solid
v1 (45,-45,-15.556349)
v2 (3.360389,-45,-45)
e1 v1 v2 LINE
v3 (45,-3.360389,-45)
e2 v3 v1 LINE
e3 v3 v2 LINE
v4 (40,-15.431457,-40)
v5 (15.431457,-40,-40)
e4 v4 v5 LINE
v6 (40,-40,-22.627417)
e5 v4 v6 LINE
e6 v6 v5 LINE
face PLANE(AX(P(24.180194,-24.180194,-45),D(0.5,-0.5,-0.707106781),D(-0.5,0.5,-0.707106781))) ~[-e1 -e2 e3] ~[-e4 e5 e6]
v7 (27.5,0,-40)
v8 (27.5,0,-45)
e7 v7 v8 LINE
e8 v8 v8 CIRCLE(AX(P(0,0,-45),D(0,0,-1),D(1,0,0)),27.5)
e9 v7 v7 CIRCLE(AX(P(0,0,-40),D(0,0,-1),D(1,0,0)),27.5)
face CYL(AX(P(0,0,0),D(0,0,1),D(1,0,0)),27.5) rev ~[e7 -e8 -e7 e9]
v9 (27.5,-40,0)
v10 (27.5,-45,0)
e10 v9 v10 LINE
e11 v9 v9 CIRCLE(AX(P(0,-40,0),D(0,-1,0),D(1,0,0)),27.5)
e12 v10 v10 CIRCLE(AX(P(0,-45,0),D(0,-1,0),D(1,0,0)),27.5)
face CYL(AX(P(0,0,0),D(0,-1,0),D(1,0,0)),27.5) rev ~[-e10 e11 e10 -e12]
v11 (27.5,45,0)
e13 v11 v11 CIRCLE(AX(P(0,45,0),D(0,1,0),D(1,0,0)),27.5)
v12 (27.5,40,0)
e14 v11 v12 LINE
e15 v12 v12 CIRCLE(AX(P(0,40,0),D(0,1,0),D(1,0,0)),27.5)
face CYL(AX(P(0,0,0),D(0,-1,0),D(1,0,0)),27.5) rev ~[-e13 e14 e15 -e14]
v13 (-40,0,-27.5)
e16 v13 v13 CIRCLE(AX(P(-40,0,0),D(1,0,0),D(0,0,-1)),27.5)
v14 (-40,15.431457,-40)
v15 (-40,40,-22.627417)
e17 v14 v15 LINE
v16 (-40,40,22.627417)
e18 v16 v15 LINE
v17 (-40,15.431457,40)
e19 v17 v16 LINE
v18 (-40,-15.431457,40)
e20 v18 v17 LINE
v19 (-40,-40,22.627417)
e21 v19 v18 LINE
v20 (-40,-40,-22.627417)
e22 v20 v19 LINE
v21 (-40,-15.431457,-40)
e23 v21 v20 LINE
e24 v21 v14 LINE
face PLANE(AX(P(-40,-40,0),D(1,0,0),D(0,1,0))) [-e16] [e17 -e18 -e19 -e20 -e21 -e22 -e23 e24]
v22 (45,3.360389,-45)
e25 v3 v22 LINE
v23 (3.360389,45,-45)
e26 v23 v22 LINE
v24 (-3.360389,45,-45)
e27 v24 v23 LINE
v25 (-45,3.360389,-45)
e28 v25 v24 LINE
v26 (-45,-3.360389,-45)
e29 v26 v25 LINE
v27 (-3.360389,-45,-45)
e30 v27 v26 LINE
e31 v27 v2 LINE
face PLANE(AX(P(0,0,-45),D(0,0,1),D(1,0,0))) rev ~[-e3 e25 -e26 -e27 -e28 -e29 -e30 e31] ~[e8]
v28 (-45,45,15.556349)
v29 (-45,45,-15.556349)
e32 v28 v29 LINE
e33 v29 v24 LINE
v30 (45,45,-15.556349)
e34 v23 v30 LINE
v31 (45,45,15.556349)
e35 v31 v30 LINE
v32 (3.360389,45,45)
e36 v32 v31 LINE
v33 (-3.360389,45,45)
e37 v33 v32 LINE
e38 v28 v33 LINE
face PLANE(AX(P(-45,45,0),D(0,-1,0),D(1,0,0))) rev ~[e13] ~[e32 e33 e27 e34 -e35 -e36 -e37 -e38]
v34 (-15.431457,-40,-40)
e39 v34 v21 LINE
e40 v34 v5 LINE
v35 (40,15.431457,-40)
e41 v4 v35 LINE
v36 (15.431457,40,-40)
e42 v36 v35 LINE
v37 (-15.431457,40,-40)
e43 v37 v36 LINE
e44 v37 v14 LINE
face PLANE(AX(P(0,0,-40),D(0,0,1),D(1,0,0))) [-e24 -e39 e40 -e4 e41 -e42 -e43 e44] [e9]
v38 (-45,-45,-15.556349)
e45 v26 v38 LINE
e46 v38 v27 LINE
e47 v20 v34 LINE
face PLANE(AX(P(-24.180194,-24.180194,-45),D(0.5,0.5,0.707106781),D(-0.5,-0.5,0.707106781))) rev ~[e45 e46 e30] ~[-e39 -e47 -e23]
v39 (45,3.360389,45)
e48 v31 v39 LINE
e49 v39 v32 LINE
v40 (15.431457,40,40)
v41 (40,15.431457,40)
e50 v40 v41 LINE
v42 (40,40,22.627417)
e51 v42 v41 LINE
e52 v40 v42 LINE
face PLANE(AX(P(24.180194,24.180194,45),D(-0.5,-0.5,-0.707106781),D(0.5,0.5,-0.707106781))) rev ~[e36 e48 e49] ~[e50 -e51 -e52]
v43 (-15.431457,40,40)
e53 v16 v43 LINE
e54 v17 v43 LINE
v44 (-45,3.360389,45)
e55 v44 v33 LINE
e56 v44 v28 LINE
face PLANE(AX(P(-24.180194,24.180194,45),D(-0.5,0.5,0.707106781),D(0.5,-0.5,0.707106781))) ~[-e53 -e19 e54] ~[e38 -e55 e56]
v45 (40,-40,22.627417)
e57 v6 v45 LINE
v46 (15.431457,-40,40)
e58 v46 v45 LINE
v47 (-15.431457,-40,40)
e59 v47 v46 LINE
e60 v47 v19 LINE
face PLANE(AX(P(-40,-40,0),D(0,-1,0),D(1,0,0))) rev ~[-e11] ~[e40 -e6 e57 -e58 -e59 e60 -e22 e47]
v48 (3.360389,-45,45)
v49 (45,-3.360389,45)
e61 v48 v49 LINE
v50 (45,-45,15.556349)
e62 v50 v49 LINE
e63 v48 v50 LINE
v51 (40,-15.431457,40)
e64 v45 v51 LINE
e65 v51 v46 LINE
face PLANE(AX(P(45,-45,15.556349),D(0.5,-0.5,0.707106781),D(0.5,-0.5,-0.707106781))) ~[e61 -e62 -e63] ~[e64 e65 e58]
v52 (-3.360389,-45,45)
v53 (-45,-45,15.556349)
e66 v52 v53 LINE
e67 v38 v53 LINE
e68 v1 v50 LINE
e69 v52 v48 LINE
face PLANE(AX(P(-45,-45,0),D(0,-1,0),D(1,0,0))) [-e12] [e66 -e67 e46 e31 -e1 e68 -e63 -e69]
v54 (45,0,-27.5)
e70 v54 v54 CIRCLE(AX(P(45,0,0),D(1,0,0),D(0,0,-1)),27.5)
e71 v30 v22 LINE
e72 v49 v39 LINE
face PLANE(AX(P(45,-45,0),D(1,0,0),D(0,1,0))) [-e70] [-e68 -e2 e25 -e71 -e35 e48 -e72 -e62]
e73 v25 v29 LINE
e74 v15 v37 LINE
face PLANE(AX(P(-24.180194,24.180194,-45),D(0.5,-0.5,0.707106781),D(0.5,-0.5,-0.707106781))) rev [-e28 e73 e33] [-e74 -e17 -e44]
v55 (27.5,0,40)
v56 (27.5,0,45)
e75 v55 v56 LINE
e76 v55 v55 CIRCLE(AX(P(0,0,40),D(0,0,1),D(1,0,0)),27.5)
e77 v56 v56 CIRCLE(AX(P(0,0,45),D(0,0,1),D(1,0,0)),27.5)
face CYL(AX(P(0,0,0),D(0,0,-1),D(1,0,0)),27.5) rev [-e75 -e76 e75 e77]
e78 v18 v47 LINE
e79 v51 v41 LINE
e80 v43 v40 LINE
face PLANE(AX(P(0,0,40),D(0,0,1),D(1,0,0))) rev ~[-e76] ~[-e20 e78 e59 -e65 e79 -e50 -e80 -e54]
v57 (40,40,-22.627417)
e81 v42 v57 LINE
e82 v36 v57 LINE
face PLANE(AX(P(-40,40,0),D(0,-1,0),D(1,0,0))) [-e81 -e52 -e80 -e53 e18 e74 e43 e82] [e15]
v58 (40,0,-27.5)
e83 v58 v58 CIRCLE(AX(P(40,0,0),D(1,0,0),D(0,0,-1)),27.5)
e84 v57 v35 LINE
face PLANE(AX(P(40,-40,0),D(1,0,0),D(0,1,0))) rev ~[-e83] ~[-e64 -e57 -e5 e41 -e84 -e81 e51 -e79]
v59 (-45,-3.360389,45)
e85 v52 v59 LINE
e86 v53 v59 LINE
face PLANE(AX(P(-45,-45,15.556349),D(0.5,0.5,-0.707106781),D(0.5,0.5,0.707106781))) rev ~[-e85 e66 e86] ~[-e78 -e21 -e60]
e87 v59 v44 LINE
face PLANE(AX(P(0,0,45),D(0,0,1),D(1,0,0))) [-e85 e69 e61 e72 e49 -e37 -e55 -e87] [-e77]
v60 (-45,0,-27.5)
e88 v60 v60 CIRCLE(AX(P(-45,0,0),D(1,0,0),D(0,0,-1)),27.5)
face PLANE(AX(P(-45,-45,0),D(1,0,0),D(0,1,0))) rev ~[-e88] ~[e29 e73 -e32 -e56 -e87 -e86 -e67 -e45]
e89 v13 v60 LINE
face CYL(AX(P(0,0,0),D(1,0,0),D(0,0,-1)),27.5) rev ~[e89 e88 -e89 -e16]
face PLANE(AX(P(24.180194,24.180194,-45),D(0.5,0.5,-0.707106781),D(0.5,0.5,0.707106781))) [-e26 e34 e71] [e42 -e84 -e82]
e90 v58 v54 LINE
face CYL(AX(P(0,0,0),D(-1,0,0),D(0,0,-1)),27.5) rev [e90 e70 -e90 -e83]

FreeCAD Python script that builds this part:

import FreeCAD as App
import Part
import Sketcher


def add_polygon(sketch, points):
    """Adds a closed chain of lines whose ends are joined by coincident constraints."""
    first, n = sketch.GeometryCount, len(points)
    for a, b in zip(points, points[1:] + points[:1]):
        sketch.addGeometry(Part.LineSegment(App.Vector(*a, 0), App.Vector(*b, 0)), False)
    for i in range(n):
        sketch.addConstraint(Sketcher.Constraint("Coincident", first + i, 2, first + (i + 1) % n, 1))

doc = App.newDocument("Part")
body = doc.addObject("PartDesign::Body", "Body")

# Sketch on XY plane
sketch1 = body.newObject("Sketcher::SketchObject", "Sketch")
sketch1.AttachmentSupport = (doc.getObject("XY_Plane"), [""])
sketch1.MapMode = "FlatFace"
add_polygon(sketch1, [(-45, 45), (-45, -45), (45, -45), (45, 45)])  # lines 0-3
sketch1.addConstraint([
    Sketcher.Constraint("Vertical", 0),
    Sketcher.Constraint("Horizontal", 1),
    Sketcher.Constraint("Vertical", 2),
    Sketcher.Constraint("Horizontal", 3),
    Sketcher.Constraint("Symmetric", 0, 2, 2, 2, -1, 1),
    Sketcher.Constraint("Equal", 3, 0),
    Sketcher.Constraint("DistanceX", 1, 1, 1, 2, 90.0),
])
pad1 = body.newObject("PartDesign::Pad", "Pad")
pad1.Profile = sketch1
pad1.Length = 90
pad1.Midplane = True

# Sketch on XY plane
sketch2 = body.newObject("Sketcher::SketchObject", "Sketch001")
sketch2.AttachmentSupport = (doc.getObject("XY_Plane"), [""])
sketch2.MapMode = "FlatFace"
add_polygon(sketch2, [(-40, 40), (-40, -40), (40, -40), (40, 40)])  # lines 0-3
sketch2.addConstraint([
    Sketcher.Constraint("Vertical", 0),
    Sketcher.Constraint("Horizontal", 1),
    Sketcher.Constraint("Vertical", 2),
    Sketcher.Constraint("Horizontal", 3),
    Sketcher.Constraint("Symmetric", 0, 2, 2, 2, -1, 1),
    Sketcher.Constraint("Equal", 3, 0),
    Sketcher.Constraint("DistanceX", 1, 1, 1, 2, 80.0),
])
pocket1 = body.newObject("PartDesign::Pocket", "Pocket")
pocket1.Profile = sketch2
pocket1.Length = 80
pocket1.Midplane = True

# Sketch on XY plane
sketch3 = body.newObject("Sketcher::SketchObject", "Sketch002")
sketch3.AttachmentSupport = (doc.getObject("XY_Plane"), [""])
sketch3.MapMode = "FlatFace"
sketch3.addGeometry(Part.Circle(App.Vector(0, 0, 0), App.Vector(0, 0, 1), 28), False)
sketch3.addConstraint([
    Sketcher.Constraint("Coincident", 0, 3, -1, 1),
    Sketcher.Constraint("Diameter", 0, 55.0),
])
pocket2 = body.newObject("PartDesign::Pocket", "Pocket001")
pocket2.Profile = sketch3
pocket2.Type = "ThroughAll"
pocket2.Midplane = True

# Sketch on YZ plane
sketch4 = body.newObject("Sketcher::SketchObject", "Sketch003")
sketch4.AttachmentSupport = (doc.getObject("YZ_Plane"), [""])
sketch4.MapMode = "FlatFace"
sketch4.addGeometry(Part.Circle(App.Vector(0, 0, 0), App.Vector(0, 0, 1), 28), False)
sketch4.addConstraint([
    Sketcher.Constraint("Coincident", 0, 3, -1, 1),
    Sketcher.Constraint("Diameter", 0, 55.0),
])
pocket3 = body.newObject("PartDesign::Pocket", "Pocket002")
pocket3.Profile = sketch4
pocket3.Type = "ThroughAll"
pocket3.Midplane = True

# Sketch on XY plane
sketch5 = body.newObject("Sketcher::SketchObject", "Sketch004")
sketch5.AttachmentSupport = (doc.getObject("XY_Plane"), [""])
sketch5.MapMode = "FlatFace"
sketch5.addGeometry(Part.Circle(App.Vector(0, 0, 0), App.Vector(0, 0, 1), 28), False)
sketch5.addConstraint([
    Sketcher.Constraint("Coincident", 0, 3, -1, 1),
    Sketcher.Constraint("Diameter", 0, 55.0),
])
pocket4 = body.newObject("PartDesign::Pocket", "Pocket003")
pocket4.Profile = sketch5
pocket4.Type = "ThroughAll"
pocket4.Midplane = True

# Sketch on YZ plane
sketch6 = body.newObject("Sketcher::SketchObject", "Sketch005")
sketch6.AttachmentSupport = (doc.getObject("YZ_Plane"), [""])
sketch6.MapMode = "FlatFace"
sketch6.addGeometry(Part.Circle(App.Vector(0, 0, 0), App.Vector(0, 0, 1), 28), False)
sketch6.addConstraint([
    Sketcher.Constraint("Coincident", 0, 3, -1, 1),
    Sketcher.Constraint("Diameter", 0, 55.0),
])
pocket5 = body.newObject("PartDesign::Pocket", "Pocket004")
pocket5.Profile = sketch6
pocket5.Type = "ThroughAll"
pocket5.Midplane = True
doc.recompute()

polarpattern = body.newObject("PartDesign::PolarPattern", "PolarPattern")
polarpattern.Originals = [pocket2, pocket3, pocket4, pocket5]
polarpattern.Axis = (doc.getObject("X_Axis"), [""])
polarpattern.Angle = 360
polarpattern.Occurrences = 4
body.Tip = polarpattern

# Sketch on an angled plane
sketch7 = body.newObject("Sketcher::SketchObject", "Sketch006")
sketch7.Placement = App.Placement(App.Vector(0, 0, 0), App.Rotation(App.Vector(0, 0, 1), App.Vector(0.707106781, 0.707106781, 0), App.Vector(-0.707106781, 0.707106781, 0), "ZXY"))
add_polygon(sketch7, [(-45, 64), (-45, 34), (-16, 64)])  # lines 0-2
add_polygon(sketch7, [(45, 64), (16, 64), (45, 34)])  # lines 3-5
add_polygon(sketch7, [(45, -64), (45, -34), (16, -64)])  # lines 6-8
add_polygon(sketch7, [(-45, -34), (-45, -64), (-16, -64)])  # lines 9-11
sketch7.addConstraint([
    Sketcher.Constraint("Vertical", 0),
    Sketcher.Constraint("Horizontal", 2),
    Sketcher.Constraint("Horizontal", 3),
    Sketcher.Constraint("Vertical", 5),
    Sketcher.Constraint("Vertical", 6),
    Sketcher.Constraint("Horizontal", 8),
    Sketcher.Constraint("Vertical", 9),
    Sketcher.Constraint("Horizontal", 10),
    Sketcher.Constraint("Symmetric", 0, 2, 6, 2, -1, 1),
    Sketcher.Constraint("Symmetric", 1, 2, 7, 2, -1, 1),
    Sketcher.Constraint("Symmetric", 5, 2, 9, 2, -1, 1),
    Sketcher.Constraint("Symmetric", 1, 2, 3, 2, -2),
    Sketcher.Constraint("Symmetric", 0, 2, 4, 2, -2),
    Sketcher.Constraint("Perpendicular", 1, 4),
    Sketcher.Constraint("Perpendicular", 7, 11),
    Sketcher.Constraint("Horizontal", 6, 2, 11, 2),
    Sketcher.Constraint("DistanceX", 0, 2, -1, 1, 45.0),
    Sketcher.Constraint("DistanceX", 2, 2, 2, 1, 29.443651),
    Sketcher.Constraint("DistanceY", -1, 1, 0, 2, 34.195959),
])
pocket6 = body.newObject("PartDesign::Pocket", "Pocket005")
pocket6.Profile = sketch7
pocket6.Type = "ThroughAll"
pocket6.Midplane = True
doc.recompute()

mirrored = body.newObject("PartDesign::Mirrored", "Mirrored")
mirrored.Originals = [pocket6]
mirrored.MirrorPlane = (doc.getObject("YZ_Plane"), [""])
body.Tip = mirrored

doc.recompute()
